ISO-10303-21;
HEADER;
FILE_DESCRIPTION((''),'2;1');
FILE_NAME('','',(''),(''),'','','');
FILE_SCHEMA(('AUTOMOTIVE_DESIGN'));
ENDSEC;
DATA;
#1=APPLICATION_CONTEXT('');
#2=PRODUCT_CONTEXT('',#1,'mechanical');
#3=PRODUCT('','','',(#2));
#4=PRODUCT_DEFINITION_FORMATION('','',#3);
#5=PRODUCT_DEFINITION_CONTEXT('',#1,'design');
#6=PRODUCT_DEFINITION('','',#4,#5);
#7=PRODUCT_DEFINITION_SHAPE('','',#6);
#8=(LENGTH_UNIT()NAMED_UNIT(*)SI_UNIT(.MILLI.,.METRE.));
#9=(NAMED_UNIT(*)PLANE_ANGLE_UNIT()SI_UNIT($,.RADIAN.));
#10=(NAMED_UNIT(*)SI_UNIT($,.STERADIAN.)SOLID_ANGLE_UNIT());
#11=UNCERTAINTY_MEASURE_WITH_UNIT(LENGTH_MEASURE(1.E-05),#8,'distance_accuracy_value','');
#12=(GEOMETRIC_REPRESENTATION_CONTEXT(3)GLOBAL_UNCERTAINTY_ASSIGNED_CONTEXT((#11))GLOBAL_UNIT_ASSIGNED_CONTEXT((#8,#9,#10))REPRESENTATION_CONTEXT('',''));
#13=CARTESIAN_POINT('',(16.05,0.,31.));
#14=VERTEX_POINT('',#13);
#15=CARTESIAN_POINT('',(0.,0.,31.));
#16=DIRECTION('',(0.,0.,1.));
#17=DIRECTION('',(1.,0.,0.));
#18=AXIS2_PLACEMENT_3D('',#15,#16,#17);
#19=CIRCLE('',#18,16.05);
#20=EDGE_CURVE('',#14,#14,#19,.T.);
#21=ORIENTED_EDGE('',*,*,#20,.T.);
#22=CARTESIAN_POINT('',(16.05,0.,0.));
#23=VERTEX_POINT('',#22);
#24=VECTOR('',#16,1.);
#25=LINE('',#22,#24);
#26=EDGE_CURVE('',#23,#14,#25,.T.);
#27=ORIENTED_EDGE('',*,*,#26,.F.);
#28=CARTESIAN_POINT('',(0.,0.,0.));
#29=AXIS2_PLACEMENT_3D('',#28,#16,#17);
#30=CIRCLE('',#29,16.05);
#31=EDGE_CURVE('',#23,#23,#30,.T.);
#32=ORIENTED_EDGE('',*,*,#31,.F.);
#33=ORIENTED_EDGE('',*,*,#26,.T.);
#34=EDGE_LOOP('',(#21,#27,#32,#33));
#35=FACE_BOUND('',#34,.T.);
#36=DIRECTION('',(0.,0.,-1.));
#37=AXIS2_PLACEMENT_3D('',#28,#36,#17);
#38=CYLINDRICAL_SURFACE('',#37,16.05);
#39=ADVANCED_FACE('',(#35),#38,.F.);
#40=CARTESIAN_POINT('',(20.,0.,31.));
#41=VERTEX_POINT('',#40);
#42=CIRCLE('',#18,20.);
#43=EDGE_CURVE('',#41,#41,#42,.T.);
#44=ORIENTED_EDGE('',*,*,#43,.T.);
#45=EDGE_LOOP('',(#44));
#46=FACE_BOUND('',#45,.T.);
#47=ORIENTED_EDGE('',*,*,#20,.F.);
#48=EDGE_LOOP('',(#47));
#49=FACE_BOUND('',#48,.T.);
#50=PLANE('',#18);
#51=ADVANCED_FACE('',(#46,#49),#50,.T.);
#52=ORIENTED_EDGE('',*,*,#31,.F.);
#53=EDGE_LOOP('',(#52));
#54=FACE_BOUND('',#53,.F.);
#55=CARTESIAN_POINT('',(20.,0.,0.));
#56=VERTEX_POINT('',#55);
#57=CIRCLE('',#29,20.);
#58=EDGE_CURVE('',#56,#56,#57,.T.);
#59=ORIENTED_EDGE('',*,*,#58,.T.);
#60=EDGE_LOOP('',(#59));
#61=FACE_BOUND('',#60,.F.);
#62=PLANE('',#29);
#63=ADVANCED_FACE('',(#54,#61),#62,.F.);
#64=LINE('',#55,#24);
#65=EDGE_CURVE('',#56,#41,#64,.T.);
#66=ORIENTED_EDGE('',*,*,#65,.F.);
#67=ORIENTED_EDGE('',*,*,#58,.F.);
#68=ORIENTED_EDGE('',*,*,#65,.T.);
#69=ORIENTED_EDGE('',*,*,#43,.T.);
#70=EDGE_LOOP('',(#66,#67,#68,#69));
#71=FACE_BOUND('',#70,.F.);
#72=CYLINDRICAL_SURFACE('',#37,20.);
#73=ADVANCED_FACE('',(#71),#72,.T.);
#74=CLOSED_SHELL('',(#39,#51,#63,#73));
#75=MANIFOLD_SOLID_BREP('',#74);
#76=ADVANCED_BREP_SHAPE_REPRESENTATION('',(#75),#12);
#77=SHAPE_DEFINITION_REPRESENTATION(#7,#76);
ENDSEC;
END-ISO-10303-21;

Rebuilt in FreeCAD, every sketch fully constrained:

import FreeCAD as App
import Part
import Sketcher
from FreeCAD import Vector
Q = App.Units.Quantity

doc = App.newDocument("Part")
params = doc.addObject("Spreadsheet::Sheet", "Params")
for row, (alias, value) in enumerate([
    ("sketch1_diameter", "40 mm"),
    ("sketch1_diameter2", "32.1 mm"),
    ("pad1_length", "31 mm"),
], start=1):
    params.set(f"A{row}", alias)
    params.set(f"B{row}", "=" + value)
    params.setAlias(f"B{row}", alias)

body = doc.addObject("PartDesign::Body", "Body")

# Sketch on XY plane
sketch1 = doc.addObject("Sketcher::SketchObject", "Sketch")
body.addObject(sketch1)
sketch1.AttachmentSupport = (doc.XY_Plane, [""])
sketch1.MapMode = "FlatFace"
sketch1.addGeometry(Part.Circle(Vector(0, 0, 0), Vector(0, 0, 1), 20), False)
sketch1.addGeometry(Part.Circle(Vector(0, 0, 0), Vector(0, 0, 1), 16), False)
sketch1.addConstraint(Sketcher.Constraint("Coincident", 0, 3, -1, 1))
sketch1.addConstraint(Sketcher.Constraint("Coincident", 1, 3, -1, 1))
sketch1.addConstraint(Sketcher.Constraint("Diameter", 0, Q("40 mm")))
sketch1.addConstraint(Sketcher.Constraint("Diameter", 1, Q("32.1 mm")))
sketch1.setExpression("Constraints[2]", "Params.sketch1_diameter")
sketch1.setExpression("Constraints[3]", "Params.sketch1_diameter2")
pad1 = doc.addObject("PartDesign::Pad", "Pad")
body.addObject(pad1)
pad1.Profile = sketch1
pad1.setExpression("Length", "Params.pad1_length")

doc.recompute()
